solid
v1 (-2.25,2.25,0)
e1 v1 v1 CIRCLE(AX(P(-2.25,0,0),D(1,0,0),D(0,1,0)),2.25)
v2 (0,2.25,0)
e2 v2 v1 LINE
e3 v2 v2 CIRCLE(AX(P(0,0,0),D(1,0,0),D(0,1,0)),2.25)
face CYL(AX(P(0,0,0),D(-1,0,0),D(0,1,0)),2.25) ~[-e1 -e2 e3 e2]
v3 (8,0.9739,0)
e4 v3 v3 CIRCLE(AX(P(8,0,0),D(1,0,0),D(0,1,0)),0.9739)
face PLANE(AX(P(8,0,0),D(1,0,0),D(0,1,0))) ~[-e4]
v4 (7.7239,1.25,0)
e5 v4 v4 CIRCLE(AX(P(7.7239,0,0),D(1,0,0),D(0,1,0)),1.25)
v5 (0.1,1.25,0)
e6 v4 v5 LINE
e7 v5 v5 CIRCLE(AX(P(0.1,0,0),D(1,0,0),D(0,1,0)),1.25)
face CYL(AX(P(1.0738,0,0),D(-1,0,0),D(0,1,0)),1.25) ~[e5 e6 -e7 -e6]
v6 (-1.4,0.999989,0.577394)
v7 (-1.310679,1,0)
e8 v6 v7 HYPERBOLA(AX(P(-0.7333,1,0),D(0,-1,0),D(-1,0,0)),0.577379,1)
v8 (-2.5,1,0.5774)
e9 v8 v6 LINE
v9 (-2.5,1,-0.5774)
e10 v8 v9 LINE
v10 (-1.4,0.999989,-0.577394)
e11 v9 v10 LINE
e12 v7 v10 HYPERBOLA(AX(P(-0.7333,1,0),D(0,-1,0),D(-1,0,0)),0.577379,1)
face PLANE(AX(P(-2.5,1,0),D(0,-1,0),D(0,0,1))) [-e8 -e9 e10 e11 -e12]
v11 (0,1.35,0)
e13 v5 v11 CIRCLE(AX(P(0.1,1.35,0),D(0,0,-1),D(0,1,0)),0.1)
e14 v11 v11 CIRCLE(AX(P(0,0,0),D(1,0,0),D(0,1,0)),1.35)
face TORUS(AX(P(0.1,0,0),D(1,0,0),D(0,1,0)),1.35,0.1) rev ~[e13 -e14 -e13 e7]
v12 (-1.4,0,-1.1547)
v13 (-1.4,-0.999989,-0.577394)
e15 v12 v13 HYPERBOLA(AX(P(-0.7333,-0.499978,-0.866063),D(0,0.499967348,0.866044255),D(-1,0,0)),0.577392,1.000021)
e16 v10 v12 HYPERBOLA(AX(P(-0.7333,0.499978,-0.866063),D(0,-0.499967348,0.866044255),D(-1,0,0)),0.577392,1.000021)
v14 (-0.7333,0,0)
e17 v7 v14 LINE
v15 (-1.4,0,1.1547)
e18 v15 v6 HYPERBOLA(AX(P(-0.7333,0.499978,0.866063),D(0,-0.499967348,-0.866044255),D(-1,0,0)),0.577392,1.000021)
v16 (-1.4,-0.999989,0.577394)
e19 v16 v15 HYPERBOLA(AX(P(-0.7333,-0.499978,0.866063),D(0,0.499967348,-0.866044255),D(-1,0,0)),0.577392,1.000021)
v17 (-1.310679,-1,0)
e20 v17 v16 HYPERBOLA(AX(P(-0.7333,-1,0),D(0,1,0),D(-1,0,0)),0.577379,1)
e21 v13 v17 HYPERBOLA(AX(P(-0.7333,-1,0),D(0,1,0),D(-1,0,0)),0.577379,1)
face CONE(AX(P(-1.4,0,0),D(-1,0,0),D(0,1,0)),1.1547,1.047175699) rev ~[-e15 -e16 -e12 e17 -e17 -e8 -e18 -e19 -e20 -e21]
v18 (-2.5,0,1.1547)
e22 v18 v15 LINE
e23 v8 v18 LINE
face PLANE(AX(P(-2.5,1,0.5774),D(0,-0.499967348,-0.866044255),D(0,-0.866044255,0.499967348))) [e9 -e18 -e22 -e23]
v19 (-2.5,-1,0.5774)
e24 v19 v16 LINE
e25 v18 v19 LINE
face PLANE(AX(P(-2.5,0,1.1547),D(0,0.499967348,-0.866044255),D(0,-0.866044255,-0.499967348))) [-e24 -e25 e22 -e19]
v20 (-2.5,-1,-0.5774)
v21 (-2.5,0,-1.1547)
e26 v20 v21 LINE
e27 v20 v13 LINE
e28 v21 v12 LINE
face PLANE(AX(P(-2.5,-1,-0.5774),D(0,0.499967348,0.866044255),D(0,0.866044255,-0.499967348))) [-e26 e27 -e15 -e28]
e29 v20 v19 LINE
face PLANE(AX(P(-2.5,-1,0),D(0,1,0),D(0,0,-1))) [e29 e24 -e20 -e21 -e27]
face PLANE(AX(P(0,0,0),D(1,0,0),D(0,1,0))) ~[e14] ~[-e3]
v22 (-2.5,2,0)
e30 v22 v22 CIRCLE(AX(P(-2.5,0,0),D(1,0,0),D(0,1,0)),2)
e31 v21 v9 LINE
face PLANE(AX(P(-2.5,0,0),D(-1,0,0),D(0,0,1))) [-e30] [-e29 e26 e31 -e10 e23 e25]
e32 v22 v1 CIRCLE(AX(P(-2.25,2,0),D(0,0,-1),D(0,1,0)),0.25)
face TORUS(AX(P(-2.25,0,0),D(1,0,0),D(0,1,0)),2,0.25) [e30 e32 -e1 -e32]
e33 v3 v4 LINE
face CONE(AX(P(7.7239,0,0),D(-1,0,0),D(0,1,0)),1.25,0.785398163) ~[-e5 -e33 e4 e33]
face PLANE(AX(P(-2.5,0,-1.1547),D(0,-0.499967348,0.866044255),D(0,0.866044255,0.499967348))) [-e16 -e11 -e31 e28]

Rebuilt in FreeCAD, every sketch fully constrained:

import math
import FreeCAD as App
import Part
import Sketcher

V = App.Vector


def edges_at(feature, points):
    """Names of the edges that pass closest to the given points."""
    edges = feature.Shape.Edges
    near = lambda p: min(range(len(edges)), key=lambda i: edges[i].distToShape(Part.Vertex(*p))[0])
    return sorted({f"Edge{near(p) + 1}" for p in points})

doc = App.newDocument("Part")
params = doc.addObject("Spreadsheet::Sheet", "Params")
for row, (alias, value) in enumerate([
    ("sketch1_width", "8 mm"),
    ("sketch1_width2", "2.5 mm"),
    ("sketch1_width3", "1.1 mm"),
    ("sketch1_height", "1 mm"),
    ("sketch1_height2", "1.25 mm"),
    ("revolution_angle", "360 deg"),
    ("fillet_radius", "0.25 mm"),
    ("chamfer_size", "0.2761 mm"),
    ("chamfer_size2", "0.2761 mm"),
    ("fillet2_radius", "0.1 mm"),
], start=1):
    params.set(f"A{row}", alias)
    params.set(f"B{row}", "=" + value)
    params.setAlias(f"B{row}", alias)

body = doc.addObject("PartDesign::Body", "Body")

sketch1 = doc.addObject("Sketcher::SketchObject", "Sketch")
body.addObject(sketch1)
sketch1.AttachmentSupport = (doc.XY_Plane, [""])
sketch1.MapMode = "FlatFace"
sketch1.addGeometry([
    Part.LineSegment(V(-1.4, 1.1547, 0), V(-0.7333, 0, 0)),
    Part.LineSegment(V(-0.7333, 0, 0), V(8, 0, 0)),
    Part.LineSegment(V(8, 0, 0), V(8, 1.25, 0)),
    Part.LineSegment(V(8, 1.25, 0), V(0, 1.25, 0)),
    Part.LineSegment(V(0, 1.25, 0), V(0, 2.25, 0)),
    Part.LineSegment(V(0, 2.25, 0), V(-2.5, 2.25, 0)),
    Part.LineSegment(V(-2.5, 2.25, 0), V(-2.5, 1.1547, 0)),
    Part.LineSegment(V(-2.5, 1.1547, 0), V(-1.4, 1.1547, 0)),
], False)
sketch1.addConstraint([
    Sketcher.Constraint("Coincident", 0, 2, 1, 1),
    Sketcher.Constraint("Coincident", 1, 2, 2, 1),
    Sketcher.Constraint("Coincident", 2, 2, 3, 1),
    Sketcher.Constraint("Coincident", 3, 2, 4, 1),
    Sketcher.Constraint("Coincident", 4, 2, 5, 1),
    Sketcher.Constraint("Coincident", 5, 2, 6, 1),
    Sketcher.Constraint("Coincident", 6, 2, 7, 1),
    Sketcher.Constraint("Coincident", 7, 2, 0, 1),
    Sketcher.Constraint("Horizontal", 1),
    Sketcher.Constraint("Vertical", 2),
    Sketcher.Constraint("Horizontal", 3),
    Sketcher.Constraint("Vertical", 4),
    Sketcher.Constraint("Horizontal", 5),
    Sketcher.Constraint("Vertical", 6),
    Sketcher.Constraint("Horizontal", 7),
    Sketcher.Constraint("PointOnObject", 0, 2, -1),
    Sketcher.Constraint("PointOnObject", 3, 2, -2),
    Sketcher.Constraint("DistanceX", 3, 2, 3, 1, 8.0),
    Sketcher.Constraint("DistanceX", 5, 2, 5, 1, 2.5),
    Sketcher.Constraint("DistanceX", 7, 1, 7, 2, 1.1),
    Sketcher.Constraint("DistanceY", 4, 1, 4, 2, 1.0),
    Sketcher.Constraint("DistanceY", 2, 1, 2, 2, 1.25),
    Sketcher.Constraint("DistanceX", 1, 1, 1, 2, 8.7333),
    Sketcher.Constraint("DistanceY", 6, 2, 6, 1, 1.0953),
])
sketch1.setExpression("Constraints[17]", "Params.sketch1_width")
sketch1.setExpression("Constraints[18]", "Params.sketch1_width2")
sketch1.setExpression("Constraints[19]", "Params.sketch1_width3")
sketch1.setExpression("Constraints[20]", "Params.sketch1_height")
sketch1.setExpression("Constraints[21]", "Params.sketch1_height2")
revolution = doc.addObject("PartDesign::Revolution", "Revolution")
body.addObject(revolution)
revolution.Profile = sketch1
revolution.ReferenceAxis = (sketch1, ["H_Axis"])
revolution.setExpression("Angle", "Params.revolution_angle")

sketch2 = doc.addObject("Sketcher::SketchObject", "Sketch001")
body.addObject(sketch2)
sketch2.AttachmentSupport = (doc.YZ_Plane, [""])
sketch2.MapMode = "FlatFace"
sketch2.AttachmentOffset = App.Placement(V(0, 0, -2.5), App.Rotation())
sketch2.addGeometry([
    Part.LineSegment(V(1, 0.5774, 0), V(0, 1.1547, 0)),
    Part.ArcOfCircle(Part.Circle(V(0, 0, 0), V(0, 0, 1), 1.1547), math.radians(30.002137), math.radians(90)),
    Part.ArcOfCircle(Part.Circle(V(0, 0, 0), V(0, 0, 1), 1.1547), math.radians(90), math.radians(149.997863)),
    Part.LineSegment(V(0, 1.1547, 0), V(-1, 0.5774, 0)),
    Part.ArcOfCircle(Part.Circle(V(0, 0, 0), V(0, 0, 1), 1.1547), math.radians(-30.002137), math.radians(30.002137)),
    Part.LineSegment(V(1, 0.5774, 0), V(1, -0.5774, 0)),
    Part.LineSegment(V(-1, 0.5774, 0), V(-1, -0.5774, 0)),
    Part.ArcOfCircle(Part.Circle(V(0, 0, 0), V(0, 0, 1), 1.1547), math.radians(149.997863), math.radians(210.002137)),
    Part.LineSegment(V(-1, -0.5774, 0), V(0, -1.1547, 0)),
    Part.ArcOfCircle(Part.Circle(V(0, 0, 0), V(0, 0, 1), 1.1547), math.radians(-149.997863), math.radians(-90)),
    Part.ArcOfCircle(Part.Circle(V(0, 0, 0), V(0, 0, 1), 1.1547), math.radians(-90), math.radians(-30.002137)),
    Part.LineSegment(V(0, -1.1547, 0), V(1, -0.5774, 0)),
], False)
sketch2.addConstraint([
    Sketcher.Constraint("Coincident", 0, 1, 1, 1),
    Sketcher.Constraint("Coincident", 1, 2, 0, 2),
    Sketcher.Constraint("Coincident", 2, 1, 3, 1),
    Sketcher.Constraint("Coincident", 3, 2, 2, 2),
    Sketcher.Constraint("Coincident", 4, 1, 5, 2),
    Sketcher.Constraint("Coincident", 5, 1, 4, 2),
    Sketcher.Constraint("Coincident", 6, 1, 7, 1),
    Sketcher.Constraint("Coincident", 7, 2, 6, 2),
    Sketcher.Constraint("Coincident", 8, 1, 9, 1),
    Sketcher.Constraint("Coincident", 9, 2, 8, 2),
    Sketcher.Constraint("Coincident", 10, 1, 11, 1),
    Sketcher.Constraint("Coincident", 11, 2, 10, 2),
    Sketcher.Constraint("Vertical", 5),
    Sketcher.Constraint("Vertical", 6),
    Sketcher.Constraint("Coincident", 1, 3, -1, 1),
    Sketcher.Constraint("Coincident", 2, 3, -1, 1),
    Sketcher.Constraint("Coincident", 4, 3, -1, 1),
    Sketcher.Constraint("Coincident", 7, 3, -1, 1),
    Sketcher.Constraint("Coincident", 9, 3, -1, 1),
    Sketcher.Constraint("Coincident", 10, 3, -1, 1),
    Sketcher.Constraint("Coincident", 2, 1, 1, 2),
    Sketcher.Constraint("Coincident", 5, 1, 0, 1),
    Sketcher.Constraint("Coincident", 6, 1, 3, 2),
    Sketcher.Constraint("Coincident", 8, 1, 7, 2),
    Sketcher.Constraint("Coincident", 10, 1, 9, 2),
    Sketcher.Constraint("PointOnObject", 1, 2, -2),
    Sketcher.Constraint("PointOnObject", 9, 2, -2),
    Sketcher.Constraint("Parallel", 0, 8),
    Sketcher.Constraint("Parallel", 3, 11),
    Sketcher.Constraint("DistanceX", -1, 1, 0, 1, 1.0),
    Sketcher.Constraint("Radius", 1, 1.1547),
])
pad1 = doc.addObject("PartDesign::Pad", "Pad")
body.addObject(pad1)
pad1.Profile = sketch2
pad1.Type = "UpToFirst"
doc.recompute()

fillet = doc.addObject("PartDesign::Fillet", "Fillet")
body.addObject(fillet)
fillet.Base = (pad1, edges_at(pad1, [(-2.5, -2.25, 0)]))
fillet.setExpression("Radius", "Params.fillet_radius")
doc.recompute()

chamfer = doc.addObject("PartDesign::Chamfer", "Chamfer")
body.addObject(chamfer)
chamfer.Base = (fillet, edges_at(fillet, [(8, -1.25, 0)]))
chamfer.ChamferType = "Two distances"
chamfer.setExpression("Size", "Params.chamfer_size")
chamfer.setExpression("Size2", "Params.chamfer_size2")
doc.recompute()

fillet2 = doc.addObject("PartDesign::Fillet", "Fillet001")
body.addObject(fillet2)
fillet2.Base = (chamfer, edges_at(chamfer, [(0, -1.25, 0)]))
fillet2.setExpression("Radius", "Params.fillet2_radius")

doc.recompute()
